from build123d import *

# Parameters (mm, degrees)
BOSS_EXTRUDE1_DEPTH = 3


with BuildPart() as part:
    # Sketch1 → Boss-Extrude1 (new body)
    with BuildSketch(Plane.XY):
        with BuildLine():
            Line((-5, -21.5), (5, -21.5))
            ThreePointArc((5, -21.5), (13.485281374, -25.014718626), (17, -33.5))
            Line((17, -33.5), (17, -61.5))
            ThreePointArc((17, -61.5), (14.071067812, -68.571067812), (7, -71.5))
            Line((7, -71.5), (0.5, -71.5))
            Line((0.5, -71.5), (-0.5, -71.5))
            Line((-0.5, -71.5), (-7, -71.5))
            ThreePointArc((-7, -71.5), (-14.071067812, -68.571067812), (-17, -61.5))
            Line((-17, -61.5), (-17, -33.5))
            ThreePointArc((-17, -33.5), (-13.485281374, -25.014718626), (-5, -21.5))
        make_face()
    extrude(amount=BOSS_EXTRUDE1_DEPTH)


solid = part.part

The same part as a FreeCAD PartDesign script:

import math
import FreeCAD as App
import Part
import Sketcher
from FreeCAD import Vector

doc = App.newDocument("Part")
body = doc.addObject("PartDesign::Body", "Body")

sketch1 = body.newObject("Sketcher::SketchObject", "Sketch")
sketch1.AttachmentSupport = (doc.getObject("XY_Plane"), [""])
sketch1.MapMode = "FlatFace"
sketch1.addGeometry([
    Part.LineSegment(Vector(5, -22, 0), Vector(-5, -22, 0)),
    Part.ArcOfCircle(Part.Circle(Vector(-5, -34, 0), Vector(0, 0, 1), 12), math.radians(90), math.radians(180)),
    Part.LineSegment(Vector(-17, -34, 0), Vector(-17, -62, 0)),
    Part.ArcOfCircle(Part.Circle(Vector(-7, -62, 0), Vector(0, 0, 1), 10), math.radians(180), math.radians(270)),
    Part.LineSegment(Vector(-7, -72, 0), Vector(7, -72, 0)),
    Part.ArcOfCircle(Part.Circle(Vector(7, -62, 0), Vector(0, 0, 1), 10), math.radians(-90), math.radians(0)),
    Part.LineSegment(Vector(17, -62, 0), Vector(17, -34, 0)),
    Part.ArcOfCircle(Part.Circle(Vector(5, -34, 0), Vector(0, 0, 1), 12), math.radians(0), math.radians(90)),
], False)
sketch1.addConstraint([
    Sketcher.Constraint("Tangent", 0, 2, 1, 1),
    Sketcher.Constraint("Tangent", 1, 2, 2, 1),
    Sketcher.Constraint("Tangent", 2, 2, 3, 1),
    Sketcher.Constraint("Tangent", 3, 2, 4, 1),
    Sketcher.Constraint("Tangent", 4, 2, 5, 1),
    Sketcher.Constraint("Tangent", 5, 2, 6, 1),
    Sketcher.Constraint("Tangent", 6, 2, 7, 1),
    Sketcher.Constraint("Tangent", 7, 2, 0, 1),
    Sketcher.Constraint("Horizontal", 0),
    Sketcher.Constraint("Vertical", 2),
    Sketcher.Constraint("Horizontal", 4),
    Sketcher.Constraint("Vertical", 6),
    Sketcher.Constraint("Equal", 3, 5),
    Sketcher.Constraint("Equal", 1, 7),
    Sketcher.Constraint("Radius", 1, 12.0),
    Sketcher.Constraint("Radius", 3, 10.0),
    Sketcher.Constraint("DistanceX", 0, 2, 0, 1, 10.0),
    Sketcher.Constraint("DistanceY", 2, 2, 2, 1, 28.0),
    Sketcher.Constraint("DistanceX", 1, 3, -1, 1, 5.0),
    Sketcher.Constraint("DistanceY", 1, 3, -1, 1, 33.5),
])
pad1 = body.newObject("PartDesign::Pad", "Pad")
pad1.Profile = sketch1
pad1.Length = 3

doc.recompute()
